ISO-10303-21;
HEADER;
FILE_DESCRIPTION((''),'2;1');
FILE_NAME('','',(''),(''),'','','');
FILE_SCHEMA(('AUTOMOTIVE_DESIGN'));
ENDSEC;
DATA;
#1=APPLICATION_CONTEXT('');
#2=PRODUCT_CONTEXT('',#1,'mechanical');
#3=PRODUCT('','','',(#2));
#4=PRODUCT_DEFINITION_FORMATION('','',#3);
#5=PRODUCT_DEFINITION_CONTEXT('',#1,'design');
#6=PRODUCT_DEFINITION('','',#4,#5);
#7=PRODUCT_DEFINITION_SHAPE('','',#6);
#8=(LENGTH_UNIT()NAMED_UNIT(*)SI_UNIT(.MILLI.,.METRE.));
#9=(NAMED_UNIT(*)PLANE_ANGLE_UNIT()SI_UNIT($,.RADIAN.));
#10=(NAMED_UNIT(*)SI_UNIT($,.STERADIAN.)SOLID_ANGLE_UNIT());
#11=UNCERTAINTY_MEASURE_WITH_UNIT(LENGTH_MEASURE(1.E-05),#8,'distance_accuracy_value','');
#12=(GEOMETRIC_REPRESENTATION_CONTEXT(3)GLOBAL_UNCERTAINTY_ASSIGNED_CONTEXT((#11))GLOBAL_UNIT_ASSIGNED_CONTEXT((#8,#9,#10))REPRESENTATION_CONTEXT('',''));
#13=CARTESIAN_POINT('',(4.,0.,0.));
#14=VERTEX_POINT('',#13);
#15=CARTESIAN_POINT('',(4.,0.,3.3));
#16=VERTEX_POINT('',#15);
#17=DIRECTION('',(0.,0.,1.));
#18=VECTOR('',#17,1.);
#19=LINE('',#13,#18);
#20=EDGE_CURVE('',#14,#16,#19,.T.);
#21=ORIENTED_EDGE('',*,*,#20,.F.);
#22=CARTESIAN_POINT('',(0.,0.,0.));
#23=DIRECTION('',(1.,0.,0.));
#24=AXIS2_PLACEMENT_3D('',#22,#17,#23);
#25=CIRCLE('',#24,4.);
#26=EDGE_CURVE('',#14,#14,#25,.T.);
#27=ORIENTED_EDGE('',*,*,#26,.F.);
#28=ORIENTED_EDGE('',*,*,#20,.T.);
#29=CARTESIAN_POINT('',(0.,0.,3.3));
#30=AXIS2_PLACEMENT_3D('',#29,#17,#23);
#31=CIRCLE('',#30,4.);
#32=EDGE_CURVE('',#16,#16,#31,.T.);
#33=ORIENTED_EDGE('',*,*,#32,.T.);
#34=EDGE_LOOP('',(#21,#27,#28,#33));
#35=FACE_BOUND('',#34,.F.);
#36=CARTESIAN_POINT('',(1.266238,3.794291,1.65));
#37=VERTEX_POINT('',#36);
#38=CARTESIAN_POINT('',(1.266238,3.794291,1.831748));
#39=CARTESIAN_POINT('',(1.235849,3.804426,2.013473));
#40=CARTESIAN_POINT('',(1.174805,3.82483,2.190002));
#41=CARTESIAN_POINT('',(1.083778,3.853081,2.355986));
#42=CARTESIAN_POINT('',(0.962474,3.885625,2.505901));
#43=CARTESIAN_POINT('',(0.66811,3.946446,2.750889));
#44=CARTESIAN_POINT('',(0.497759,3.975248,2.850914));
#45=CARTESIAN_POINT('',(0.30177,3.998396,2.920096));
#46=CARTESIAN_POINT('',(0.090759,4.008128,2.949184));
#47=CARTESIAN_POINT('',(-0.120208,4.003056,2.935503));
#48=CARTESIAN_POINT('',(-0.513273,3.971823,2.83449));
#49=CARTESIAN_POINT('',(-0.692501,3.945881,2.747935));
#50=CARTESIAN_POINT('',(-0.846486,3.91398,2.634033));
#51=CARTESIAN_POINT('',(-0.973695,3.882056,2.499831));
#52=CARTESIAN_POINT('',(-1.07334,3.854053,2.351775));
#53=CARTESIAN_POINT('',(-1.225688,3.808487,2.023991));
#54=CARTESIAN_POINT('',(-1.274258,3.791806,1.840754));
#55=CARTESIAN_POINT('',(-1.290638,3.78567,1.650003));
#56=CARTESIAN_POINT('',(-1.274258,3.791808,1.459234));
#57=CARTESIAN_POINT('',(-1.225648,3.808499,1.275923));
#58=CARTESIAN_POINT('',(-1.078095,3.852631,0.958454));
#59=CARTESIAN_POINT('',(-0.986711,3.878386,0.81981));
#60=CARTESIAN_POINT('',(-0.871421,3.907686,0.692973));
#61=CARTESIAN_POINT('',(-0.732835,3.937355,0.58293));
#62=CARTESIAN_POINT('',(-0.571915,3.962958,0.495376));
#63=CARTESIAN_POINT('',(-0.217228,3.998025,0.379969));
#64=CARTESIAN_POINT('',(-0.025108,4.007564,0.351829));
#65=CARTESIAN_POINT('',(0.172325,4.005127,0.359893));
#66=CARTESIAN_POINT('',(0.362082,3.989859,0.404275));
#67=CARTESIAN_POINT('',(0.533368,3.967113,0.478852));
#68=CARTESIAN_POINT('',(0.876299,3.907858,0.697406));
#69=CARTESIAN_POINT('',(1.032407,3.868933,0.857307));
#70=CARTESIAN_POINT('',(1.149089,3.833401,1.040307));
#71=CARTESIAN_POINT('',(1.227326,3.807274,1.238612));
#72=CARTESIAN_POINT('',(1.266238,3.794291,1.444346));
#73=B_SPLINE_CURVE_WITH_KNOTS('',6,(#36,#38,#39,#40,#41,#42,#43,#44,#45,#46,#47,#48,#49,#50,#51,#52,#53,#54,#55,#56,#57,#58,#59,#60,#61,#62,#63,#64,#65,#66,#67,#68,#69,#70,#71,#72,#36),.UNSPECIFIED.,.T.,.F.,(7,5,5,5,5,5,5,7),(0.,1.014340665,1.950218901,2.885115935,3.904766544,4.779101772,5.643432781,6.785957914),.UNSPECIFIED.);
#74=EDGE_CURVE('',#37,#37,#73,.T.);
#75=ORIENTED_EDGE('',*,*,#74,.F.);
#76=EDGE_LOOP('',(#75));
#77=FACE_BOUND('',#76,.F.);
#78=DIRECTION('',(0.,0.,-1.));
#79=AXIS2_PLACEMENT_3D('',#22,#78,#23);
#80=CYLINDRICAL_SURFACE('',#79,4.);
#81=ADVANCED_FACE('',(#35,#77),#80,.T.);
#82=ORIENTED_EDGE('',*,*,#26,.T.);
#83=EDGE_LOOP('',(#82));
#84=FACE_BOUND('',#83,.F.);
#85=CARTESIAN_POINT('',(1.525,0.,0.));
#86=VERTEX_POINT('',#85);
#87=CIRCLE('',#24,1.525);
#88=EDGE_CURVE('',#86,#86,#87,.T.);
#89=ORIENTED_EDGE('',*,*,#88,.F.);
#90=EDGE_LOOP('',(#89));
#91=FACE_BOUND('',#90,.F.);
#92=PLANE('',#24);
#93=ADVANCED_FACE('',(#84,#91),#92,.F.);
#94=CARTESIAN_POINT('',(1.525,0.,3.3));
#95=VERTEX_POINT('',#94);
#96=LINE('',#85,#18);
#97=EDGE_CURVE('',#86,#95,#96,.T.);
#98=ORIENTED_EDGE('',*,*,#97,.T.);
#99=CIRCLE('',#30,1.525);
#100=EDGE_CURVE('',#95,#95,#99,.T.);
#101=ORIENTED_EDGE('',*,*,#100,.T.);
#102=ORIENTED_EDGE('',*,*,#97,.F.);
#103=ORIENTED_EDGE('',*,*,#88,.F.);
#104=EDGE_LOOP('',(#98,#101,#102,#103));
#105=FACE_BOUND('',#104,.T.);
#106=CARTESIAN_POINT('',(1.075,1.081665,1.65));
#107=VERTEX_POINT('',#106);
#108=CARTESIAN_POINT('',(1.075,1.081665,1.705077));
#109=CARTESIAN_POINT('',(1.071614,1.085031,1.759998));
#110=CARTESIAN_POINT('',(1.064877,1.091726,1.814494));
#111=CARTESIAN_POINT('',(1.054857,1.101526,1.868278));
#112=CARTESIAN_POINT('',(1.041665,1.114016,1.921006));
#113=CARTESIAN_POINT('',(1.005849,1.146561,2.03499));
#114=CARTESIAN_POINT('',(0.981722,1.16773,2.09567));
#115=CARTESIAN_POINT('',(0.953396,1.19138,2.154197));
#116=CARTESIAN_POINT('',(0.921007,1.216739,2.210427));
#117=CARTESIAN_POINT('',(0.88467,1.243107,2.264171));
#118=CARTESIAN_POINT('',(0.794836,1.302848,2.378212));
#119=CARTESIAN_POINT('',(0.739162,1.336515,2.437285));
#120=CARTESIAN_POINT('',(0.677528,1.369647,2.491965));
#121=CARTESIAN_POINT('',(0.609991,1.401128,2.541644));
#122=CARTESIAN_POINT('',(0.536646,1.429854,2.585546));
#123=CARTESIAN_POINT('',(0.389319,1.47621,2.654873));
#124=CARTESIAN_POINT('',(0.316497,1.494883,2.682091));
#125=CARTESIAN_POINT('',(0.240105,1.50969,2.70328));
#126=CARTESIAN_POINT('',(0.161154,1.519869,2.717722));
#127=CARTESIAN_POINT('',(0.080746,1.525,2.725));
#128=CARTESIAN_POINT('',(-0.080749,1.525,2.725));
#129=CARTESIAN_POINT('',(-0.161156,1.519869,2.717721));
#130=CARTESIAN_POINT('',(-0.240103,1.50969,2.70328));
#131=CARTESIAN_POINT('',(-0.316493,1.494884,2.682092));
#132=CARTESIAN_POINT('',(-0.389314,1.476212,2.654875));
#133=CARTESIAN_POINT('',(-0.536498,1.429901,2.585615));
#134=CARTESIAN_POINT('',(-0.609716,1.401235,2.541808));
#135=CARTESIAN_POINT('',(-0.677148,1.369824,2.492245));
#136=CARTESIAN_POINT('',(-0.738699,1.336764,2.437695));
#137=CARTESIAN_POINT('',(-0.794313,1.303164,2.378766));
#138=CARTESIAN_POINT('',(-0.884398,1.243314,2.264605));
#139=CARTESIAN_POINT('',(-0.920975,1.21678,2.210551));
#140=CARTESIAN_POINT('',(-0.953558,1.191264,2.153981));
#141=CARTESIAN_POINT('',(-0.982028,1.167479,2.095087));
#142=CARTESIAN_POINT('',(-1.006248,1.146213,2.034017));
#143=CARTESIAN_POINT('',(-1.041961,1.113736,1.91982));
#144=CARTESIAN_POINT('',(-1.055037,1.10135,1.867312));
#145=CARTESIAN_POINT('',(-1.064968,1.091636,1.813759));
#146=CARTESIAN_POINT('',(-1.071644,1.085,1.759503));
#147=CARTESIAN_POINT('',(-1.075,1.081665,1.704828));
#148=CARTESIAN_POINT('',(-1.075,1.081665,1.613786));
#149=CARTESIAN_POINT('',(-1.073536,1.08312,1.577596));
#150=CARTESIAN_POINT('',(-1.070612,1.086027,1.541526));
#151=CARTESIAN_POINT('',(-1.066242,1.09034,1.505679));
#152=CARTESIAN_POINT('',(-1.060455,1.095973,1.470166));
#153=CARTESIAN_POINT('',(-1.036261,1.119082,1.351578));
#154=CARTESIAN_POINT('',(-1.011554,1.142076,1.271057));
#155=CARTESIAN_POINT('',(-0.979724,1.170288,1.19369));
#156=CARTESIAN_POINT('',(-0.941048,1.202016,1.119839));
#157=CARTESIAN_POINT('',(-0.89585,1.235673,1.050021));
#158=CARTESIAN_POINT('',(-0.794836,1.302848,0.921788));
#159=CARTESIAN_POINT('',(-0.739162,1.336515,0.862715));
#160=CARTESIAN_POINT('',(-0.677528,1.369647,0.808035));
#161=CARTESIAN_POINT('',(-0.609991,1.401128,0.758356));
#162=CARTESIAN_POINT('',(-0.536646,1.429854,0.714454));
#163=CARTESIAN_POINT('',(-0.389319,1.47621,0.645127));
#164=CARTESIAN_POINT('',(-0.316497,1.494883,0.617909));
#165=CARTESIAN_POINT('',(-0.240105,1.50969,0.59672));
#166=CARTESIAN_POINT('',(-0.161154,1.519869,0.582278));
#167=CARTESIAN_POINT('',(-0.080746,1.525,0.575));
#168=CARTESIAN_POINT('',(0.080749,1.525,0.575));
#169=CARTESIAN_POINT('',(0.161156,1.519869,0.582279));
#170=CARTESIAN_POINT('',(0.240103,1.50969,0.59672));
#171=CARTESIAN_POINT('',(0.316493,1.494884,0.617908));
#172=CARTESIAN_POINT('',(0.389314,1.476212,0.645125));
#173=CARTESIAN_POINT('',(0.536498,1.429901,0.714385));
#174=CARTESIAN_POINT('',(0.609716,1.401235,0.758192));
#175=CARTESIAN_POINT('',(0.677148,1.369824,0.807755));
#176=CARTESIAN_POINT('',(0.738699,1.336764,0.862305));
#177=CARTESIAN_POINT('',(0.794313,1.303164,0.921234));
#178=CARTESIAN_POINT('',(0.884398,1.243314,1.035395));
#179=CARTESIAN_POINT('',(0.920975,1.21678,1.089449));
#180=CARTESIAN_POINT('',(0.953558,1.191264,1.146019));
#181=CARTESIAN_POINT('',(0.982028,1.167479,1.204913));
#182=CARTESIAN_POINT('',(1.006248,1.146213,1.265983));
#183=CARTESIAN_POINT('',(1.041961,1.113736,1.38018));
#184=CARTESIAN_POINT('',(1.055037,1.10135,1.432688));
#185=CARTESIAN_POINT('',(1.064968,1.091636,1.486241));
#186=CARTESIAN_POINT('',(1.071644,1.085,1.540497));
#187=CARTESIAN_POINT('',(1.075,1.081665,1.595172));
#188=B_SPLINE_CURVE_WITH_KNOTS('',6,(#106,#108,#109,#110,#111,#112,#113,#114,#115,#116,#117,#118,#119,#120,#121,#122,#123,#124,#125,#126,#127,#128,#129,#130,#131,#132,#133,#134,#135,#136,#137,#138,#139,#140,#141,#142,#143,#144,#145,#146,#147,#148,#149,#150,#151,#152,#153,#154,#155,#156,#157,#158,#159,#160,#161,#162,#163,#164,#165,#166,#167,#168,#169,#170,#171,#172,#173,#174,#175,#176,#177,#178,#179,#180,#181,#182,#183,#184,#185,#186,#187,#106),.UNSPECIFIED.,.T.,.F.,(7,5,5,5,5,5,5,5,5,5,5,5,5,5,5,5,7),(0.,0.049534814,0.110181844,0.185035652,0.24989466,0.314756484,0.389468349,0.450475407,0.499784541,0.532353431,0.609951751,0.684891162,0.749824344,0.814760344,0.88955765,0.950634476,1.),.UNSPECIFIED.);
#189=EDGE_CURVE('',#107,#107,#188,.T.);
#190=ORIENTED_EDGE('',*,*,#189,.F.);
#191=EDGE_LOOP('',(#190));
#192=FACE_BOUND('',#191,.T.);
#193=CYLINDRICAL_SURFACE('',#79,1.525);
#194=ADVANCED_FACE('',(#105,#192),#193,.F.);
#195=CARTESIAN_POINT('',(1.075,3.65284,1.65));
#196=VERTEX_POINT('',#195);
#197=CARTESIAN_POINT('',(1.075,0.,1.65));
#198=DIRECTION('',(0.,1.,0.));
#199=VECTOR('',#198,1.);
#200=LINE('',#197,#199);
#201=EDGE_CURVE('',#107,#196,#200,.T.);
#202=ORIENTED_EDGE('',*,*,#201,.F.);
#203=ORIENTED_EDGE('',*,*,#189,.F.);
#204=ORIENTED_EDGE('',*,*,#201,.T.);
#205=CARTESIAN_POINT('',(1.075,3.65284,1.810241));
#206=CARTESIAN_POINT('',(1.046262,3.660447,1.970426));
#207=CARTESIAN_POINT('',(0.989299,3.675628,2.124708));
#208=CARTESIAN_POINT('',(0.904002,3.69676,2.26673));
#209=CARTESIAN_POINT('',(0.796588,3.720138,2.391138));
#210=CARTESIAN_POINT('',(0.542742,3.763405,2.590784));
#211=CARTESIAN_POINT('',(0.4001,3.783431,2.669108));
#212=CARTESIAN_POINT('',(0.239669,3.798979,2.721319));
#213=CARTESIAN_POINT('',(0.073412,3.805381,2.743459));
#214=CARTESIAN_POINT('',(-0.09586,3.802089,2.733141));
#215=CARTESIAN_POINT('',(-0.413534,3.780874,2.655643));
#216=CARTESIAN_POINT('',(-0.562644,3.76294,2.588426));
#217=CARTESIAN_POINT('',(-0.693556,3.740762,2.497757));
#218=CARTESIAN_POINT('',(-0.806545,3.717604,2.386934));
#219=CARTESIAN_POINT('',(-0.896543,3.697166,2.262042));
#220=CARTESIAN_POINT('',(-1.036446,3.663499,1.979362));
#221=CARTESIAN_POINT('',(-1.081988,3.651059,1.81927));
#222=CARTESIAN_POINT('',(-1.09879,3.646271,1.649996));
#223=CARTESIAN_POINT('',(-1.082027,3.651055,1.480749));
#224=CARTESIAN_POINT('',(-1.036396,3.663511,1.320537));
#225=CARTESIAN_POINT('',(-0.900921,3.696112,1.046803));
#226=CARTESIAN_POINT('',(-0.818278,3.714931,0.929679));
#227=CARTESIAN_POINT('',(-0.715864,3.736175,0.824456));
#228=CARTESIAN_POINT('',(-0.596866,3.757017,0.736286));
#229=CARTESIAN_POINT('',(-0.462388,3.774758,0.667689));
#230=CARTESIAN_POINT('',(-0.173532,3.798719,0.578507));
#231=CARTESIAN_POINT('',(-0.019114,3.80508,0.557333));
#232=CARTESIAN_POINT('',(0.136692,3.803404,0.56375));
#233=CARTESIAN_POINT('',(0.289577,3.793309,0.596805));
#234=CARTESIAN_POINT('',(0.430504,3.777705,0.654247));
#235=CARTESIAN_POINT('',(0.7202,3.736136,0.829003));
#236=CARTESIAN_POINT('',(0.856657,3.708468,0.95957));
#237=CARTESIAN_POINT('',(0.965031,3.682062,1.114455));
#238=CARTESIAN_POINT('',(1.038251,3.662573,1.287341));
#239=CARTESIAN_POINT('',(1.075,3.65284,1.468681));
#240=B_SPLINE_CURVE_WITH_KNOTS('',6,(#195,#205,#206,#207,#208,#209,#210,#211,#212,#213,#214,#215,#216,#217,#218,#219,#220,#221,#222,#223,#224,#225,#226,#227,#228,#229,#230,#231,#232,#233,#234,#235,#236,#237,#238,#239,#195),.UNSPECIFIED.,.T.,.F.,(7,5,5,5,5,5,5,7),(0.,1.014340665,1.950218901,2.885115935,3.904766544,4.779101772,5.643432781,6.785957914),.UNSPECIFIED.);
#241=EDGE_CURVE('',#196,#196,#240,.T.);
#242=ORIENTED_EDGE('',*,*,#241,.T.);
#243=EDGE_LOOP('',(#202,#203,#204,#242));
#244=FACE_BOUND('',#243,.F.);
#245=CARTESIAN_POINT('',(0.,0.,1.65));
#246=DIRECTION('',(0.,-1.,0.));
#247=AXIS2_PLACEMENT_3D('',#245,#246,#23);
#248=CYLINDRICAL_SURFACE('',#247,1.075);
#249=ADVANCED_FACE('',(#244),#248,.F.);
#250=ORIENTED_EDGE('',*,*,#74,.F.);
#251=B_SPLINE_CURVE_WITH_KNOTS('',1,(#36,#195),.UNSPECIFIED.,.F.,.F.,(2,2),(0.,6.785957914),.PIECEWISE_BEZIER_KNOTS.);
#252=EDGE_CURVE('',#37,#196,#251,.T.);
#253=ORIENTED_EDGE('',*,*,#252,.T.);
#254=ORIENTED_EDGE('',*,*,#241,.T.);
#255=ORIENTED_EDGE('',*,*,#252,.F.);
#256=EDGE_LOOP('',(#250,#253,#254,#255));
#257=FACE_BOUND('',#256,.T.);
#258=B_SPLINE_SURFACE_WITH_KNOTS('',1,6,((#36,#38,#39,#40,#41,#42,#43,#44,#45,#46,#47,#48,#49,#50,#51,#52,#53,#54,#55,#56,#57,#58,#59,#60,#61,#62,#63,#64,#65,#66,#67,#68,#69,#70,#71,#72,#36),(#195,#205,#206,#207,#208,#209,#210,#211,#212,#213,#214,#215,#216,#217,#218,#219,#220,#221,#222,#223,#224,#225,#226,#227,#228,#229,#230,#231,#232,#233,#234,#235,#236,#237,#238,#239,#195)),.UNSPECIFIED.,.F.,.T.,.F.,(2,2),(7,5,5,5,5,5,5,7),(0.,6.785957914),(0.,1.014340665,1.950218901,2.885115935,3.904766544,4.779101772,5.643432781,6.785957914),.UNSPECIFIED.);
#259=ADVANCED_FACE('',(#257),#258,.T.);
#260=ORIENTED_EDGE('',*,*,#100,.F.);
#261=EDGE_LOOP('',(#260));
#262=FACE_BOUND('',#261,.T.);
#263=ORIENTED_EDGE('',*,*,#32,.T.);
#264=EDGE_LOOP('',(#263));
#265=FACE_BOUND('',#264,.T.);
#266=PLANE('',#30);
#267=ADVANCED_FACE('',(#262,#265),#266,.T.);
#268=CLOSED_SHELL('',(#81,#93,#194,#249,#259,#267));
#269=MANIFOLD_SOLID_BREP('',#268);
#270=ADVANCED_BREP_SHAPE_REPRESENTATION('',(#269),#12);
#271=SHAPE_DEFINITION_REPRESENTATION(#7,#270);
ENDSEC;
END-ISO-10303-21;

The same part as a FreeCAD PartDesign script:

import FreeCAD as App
import Part
import Sketcher

V = App.Vector
Q = App.Units.Quantity


def edges_at(feature, points):
    """Names of the edges that pass closest to the given points."""
    edges = feature.Shape.Edges
    near = lambda p: min(range(len(edges)), key=lambda i: edges[i].distToShape(Part.Vertex(*p))[0])
    return sorted({f"Edge{near(p) + 1}" for p in points})

doc = App.newDocument("Part")
body = doc.addObject("PartDesign::Body", "Body")

sketch1 = doc.addObject("Sketcher::SketchObject", "Sketch")
body.addObject(sketch1)
sketch1.AttachmentSupport = (doc.XY_Plane, [""])
sketch1.MapMode = "FlatFace"
sketch1.addGeometry([
    Part.Circle(V(0, 0, 0), V(0, 0, 1), 4),
    Part.Circle(V(0, 0, 0), V(0, 0, 1), 1.5),
], False)
sketch1.addConstraint([
    Sketcher.Constraint("Coincident", 0, 3, -1, 1),
    Sketcher.Constraint("Coincident", 1, 3, -1, 1),
    Sketcher.Constraint("Diameter", 0, Q("8 mm")),
    Sketcher.Constraint("Diameter", 1, Q("3.05 mm")),
])
pad1 = doc.addObject("PartDesign::Pad", "Pad")
body.addObject(pad1)
pad1.Profile = sketch1
pad1.Length = 3.3

sketch2 = doc.addObject("Sketcher::SketchObject", "Sketch001")
body.addObject(sketch2)
sketch2.AttachmentSupport = (doc.XZ_Plane, [""])
sketch2.MapMode = "FlatFace"
sketch2.addGeometry(Part.Circle(V(0, 1.6, 0), V(0, 0, 1), 1.1), False)
sketch2.addConstraint([
    Sketcher.Constraint("PointOnObject", 0, 3, -2),
    Sketcher.Constraint("Diameter", 0, Q("2.15 mm")),
    Sketcher.Constraint("DistanceY", -1, 1, 0, 3, Q("1.65 mm")),
])
pocket1 = doc.addObject("PartDesign::Pocket", "Pocket")
body.addObject(pocket1)
pocket1.Profile = sketch2
pocket1.Length = 5
doc.recompute()

chamfer = doc.addObject("PartDesign::Chamfer", "Chamfer")
body.addObject(chamfer)
chamfer.Base = (pocket1, edges_at(pocket1, [(-1.075, 3.853, 1.65)]))
chamfer.Size = 0.2

doc.recompute()
